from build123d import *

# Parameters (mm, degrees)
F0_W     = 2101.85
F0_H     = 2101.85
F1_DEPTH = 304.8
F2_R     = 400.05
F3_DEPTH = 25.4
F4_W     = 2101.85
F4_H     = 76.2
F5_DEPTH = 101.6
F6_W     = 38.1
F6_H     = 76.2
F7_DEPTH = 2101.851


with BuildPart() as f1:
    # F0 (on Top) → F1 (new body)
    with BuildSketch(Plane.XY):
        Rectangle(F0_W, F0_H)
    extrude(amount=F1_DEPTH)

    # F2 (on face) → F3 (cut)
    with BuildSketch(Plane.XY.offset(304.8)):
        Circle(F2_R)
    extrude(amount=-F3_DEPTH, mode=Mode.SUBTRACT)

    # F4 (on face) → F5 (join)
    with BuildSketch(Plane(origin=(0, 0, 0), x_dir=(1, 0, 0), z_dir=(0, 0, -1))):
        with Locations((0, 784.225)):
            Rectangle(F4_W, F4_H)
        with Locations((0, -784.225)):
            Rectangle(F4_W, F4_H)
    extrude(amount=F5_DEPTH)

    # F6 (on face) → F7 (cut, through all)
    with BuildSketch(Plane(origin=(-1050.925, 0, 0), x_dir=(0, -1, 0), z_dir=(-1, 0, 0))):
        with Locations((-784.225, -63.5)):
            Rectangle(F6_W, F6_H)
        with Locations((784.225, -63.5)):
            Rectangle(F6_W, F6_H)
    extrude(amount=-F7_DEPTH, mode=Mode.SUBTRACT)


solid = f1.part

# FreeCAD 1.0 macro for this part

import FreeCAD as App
import Part
import Sketcher
Q = App.Units.Quantity


def add_polygon(sketch, points):
    """Adds a closed chain of lines whose ends are joined by coincident constraints."""
    first, n = sketch.GeometryCount, len(points)
    for a, b in zip(points, points[1:] + points[:1]):
        sketch.addGeometry(Part.LineSegment(App.Vector(*a, 0), App.Vector(*b, 0)), False)
    for i in range(n):
        sketch.addConstraint(Sketcher.Constraint("Coincident", first + i, 2, first + (i + 1) % n, 1))

doc = App.newDocument("Part")
body = doc.addObject("PartDesign::Body", "Body")

# Sketch on XY plane
sketch1 = body.newObject("Sketcher::SketchObject", "Sketch")
sketch1.AttachmentSupport = (doc.getObject("XY_Plane"), [""])
sketch1.MapMode = "FlatFace"
add_polygon(sketch1, [(-1051, 1051), (-1051, -1051), (1051, -1051), (1051, 1051)])  # lines 0-3
sketch1.addConstraint([
    Sketcher.Constraint("Vertical", 0),
    Sketcher.Constraint("Horizontal", 1),
    Sketcher.Constraint("Vertical", 2),
    Sketcher.Constraint("Horizontal", 3),
    Sketcher.Constraint("Symmetric", 0, 2, 2, 2, -1, 1),
    Sketcher.Constraint("Equal", 3, 0),
    Sketcher.Constraint("DistanceX", 1, 1, 1, 2, Q("82.75 in")),
])
pad1 = body.newObject("PartDesign::Pad", "Pad")
pad1.Profile = sketch1
pad1.Length = Q("12 in")

# Sketch on XY plane
sketch2 = body.newObject("Sketcher::SketchObject", "Sketch001")
sketch2.AttachmentSupport = (doc.getObject("XY_Plane"), [""])
sketch2.MapMode = "FlatFace"
sketch2.AttachmentOffset = App.Placement(App.Vector(0, 0, 12 * 25.4), App.Rotation())
sketch2.addGeometry(Part.Circle(App.Vector(0, 0, 0), App.Vector(0, 0, 1), 400), False)
sketch2.addConstraint([
    Sketcher.Constraint("Coincident", 0, 3, -1, 1),
    Sketcher.Constraint("Diameter", 0, Q("31.5 in")),
])
pocket1 = body.newObject("PartDesign::Pocket", "Pocket")
pocket1.Profile = sketch2
pocket1.Length = Q("1 in")

# Sketch on XY plane
sketch3 = body.newObject("Sketcher::SketchObject", "Sketch002")
sketch3.AttachmentSupport = (doc.getObject("XY_Plane"), [""])
sketch3.MapMode = "FlatFace"
add_polygon(sketch3, [(-1051, -822), (-1051, -746), (1051, -746), (1051, -822)])  # lines 0-3
add_polygon(sketch3, [(-1051, 746), (-1051, 822), (1051, 822), (1051, 746)])  # lines 4-7
sketch3.addConstraint([
    Sketcher.Constraint("Vertical", 0),
    Sketcher.Constraint("Horizontal", 1),
    Sketcher.Constraint("Vertical", 2),
    Sketcher.Constraint("Horizontal", 3),
    Sketcher.Constraint("Vertical", 4),
    Sketcher.Constraint("Horizontal", 5),
    Sketcher.Constraint("Vertical", 6),
    Sketcher.Constraint("Horizontal", 7),
    Sketcher.Constraint("Symmetric", 2, 2, 4, 2, -1, 1),
    Sketcher.Constraint("Symmetric", 0, 2, 6, 2, -1, 1),
    Sketcher.Constraint("Vertical", 3, 2, 4, 2),
    Sketcher.Constraint("DistanceY", 0, 1, 0, 2, Q("3 in")),
    Sketcher.Constraint("DistanceX", 1, 1, 1, 2, Q("82.75 in")),
    Sketcher.Constraint("DistanceY", 0, 2, 4, 2, Q("61.75 in")),
])
pad2 = body.newObject("PartDesign::Pad", "Pad001")
pad2.Profile = sketch3
pad2.Length = Q("4 in")
pad2.Reversed = True

# Sketch on YZ plane
sketch4 = body.newObject("Sketcher::SketchObject", "Sketch003")
sketch4.AttachmentSupport = (doc.getObject("YZ_Plane"), [""])
sketch4.MapMode = "FlatFace"
sketch4.AttachmentOffset = App.Placement(App.Vector(0, 0, -41.375 * 25.4), App.Rotation())
add_polygon(sketch4, [(803, -25), (803, -102), (765, -102), (765, -25)])  # lines 0-3
add_polygon(sketch4, [(-765, -25), (-765, -102), (-803, -102), (-803, -25)])  # lines 4-7
sketch4.addConstraint([
    Sketcher.Constraint("Vertical", 0),
    Sketcher.Constraint("Horizontal", 1),
    Sketcher.Constraint("Vertical", 2),
    Sketcher.Constraint("Horizontal", 3),
    Sketcher.Constraint("Vertical", 4),
    Sketcher.Constraint("Horizontal", 5),
    Sketcher.Constraint("Vertical", 6),
    Sketcher.Constraint("Horizontal", 7),
    Sketcher.Constraint("Symmetric", 1, 2, 4, 2, -2),
    Sketcher.Constraint("Symmetric", 3, 2, 6, 2, -2),
    Sketcher.Constraint("DistanceY", 0, 2, 0, 1, Q("3 in")),
    Sketcher.Constraint("DistanceX", 1, 2, 1, 1, Q("1.5 in")),
    Sketcher.Constraint("DistanceY", 0, 2, -1, 1, Q("4 in")),
    Sketcher.Constraint("DistanceX", 4, 2, 1, 2, Q("60.25 in")),
])
pocket2 = body.newObject("PartDesign::Pocket", "Pocket001")
pocket2.Profile = sketch4
pocket2.Type = "ThroughAll"
pocket2.Reversed = True

doc.recompute()
